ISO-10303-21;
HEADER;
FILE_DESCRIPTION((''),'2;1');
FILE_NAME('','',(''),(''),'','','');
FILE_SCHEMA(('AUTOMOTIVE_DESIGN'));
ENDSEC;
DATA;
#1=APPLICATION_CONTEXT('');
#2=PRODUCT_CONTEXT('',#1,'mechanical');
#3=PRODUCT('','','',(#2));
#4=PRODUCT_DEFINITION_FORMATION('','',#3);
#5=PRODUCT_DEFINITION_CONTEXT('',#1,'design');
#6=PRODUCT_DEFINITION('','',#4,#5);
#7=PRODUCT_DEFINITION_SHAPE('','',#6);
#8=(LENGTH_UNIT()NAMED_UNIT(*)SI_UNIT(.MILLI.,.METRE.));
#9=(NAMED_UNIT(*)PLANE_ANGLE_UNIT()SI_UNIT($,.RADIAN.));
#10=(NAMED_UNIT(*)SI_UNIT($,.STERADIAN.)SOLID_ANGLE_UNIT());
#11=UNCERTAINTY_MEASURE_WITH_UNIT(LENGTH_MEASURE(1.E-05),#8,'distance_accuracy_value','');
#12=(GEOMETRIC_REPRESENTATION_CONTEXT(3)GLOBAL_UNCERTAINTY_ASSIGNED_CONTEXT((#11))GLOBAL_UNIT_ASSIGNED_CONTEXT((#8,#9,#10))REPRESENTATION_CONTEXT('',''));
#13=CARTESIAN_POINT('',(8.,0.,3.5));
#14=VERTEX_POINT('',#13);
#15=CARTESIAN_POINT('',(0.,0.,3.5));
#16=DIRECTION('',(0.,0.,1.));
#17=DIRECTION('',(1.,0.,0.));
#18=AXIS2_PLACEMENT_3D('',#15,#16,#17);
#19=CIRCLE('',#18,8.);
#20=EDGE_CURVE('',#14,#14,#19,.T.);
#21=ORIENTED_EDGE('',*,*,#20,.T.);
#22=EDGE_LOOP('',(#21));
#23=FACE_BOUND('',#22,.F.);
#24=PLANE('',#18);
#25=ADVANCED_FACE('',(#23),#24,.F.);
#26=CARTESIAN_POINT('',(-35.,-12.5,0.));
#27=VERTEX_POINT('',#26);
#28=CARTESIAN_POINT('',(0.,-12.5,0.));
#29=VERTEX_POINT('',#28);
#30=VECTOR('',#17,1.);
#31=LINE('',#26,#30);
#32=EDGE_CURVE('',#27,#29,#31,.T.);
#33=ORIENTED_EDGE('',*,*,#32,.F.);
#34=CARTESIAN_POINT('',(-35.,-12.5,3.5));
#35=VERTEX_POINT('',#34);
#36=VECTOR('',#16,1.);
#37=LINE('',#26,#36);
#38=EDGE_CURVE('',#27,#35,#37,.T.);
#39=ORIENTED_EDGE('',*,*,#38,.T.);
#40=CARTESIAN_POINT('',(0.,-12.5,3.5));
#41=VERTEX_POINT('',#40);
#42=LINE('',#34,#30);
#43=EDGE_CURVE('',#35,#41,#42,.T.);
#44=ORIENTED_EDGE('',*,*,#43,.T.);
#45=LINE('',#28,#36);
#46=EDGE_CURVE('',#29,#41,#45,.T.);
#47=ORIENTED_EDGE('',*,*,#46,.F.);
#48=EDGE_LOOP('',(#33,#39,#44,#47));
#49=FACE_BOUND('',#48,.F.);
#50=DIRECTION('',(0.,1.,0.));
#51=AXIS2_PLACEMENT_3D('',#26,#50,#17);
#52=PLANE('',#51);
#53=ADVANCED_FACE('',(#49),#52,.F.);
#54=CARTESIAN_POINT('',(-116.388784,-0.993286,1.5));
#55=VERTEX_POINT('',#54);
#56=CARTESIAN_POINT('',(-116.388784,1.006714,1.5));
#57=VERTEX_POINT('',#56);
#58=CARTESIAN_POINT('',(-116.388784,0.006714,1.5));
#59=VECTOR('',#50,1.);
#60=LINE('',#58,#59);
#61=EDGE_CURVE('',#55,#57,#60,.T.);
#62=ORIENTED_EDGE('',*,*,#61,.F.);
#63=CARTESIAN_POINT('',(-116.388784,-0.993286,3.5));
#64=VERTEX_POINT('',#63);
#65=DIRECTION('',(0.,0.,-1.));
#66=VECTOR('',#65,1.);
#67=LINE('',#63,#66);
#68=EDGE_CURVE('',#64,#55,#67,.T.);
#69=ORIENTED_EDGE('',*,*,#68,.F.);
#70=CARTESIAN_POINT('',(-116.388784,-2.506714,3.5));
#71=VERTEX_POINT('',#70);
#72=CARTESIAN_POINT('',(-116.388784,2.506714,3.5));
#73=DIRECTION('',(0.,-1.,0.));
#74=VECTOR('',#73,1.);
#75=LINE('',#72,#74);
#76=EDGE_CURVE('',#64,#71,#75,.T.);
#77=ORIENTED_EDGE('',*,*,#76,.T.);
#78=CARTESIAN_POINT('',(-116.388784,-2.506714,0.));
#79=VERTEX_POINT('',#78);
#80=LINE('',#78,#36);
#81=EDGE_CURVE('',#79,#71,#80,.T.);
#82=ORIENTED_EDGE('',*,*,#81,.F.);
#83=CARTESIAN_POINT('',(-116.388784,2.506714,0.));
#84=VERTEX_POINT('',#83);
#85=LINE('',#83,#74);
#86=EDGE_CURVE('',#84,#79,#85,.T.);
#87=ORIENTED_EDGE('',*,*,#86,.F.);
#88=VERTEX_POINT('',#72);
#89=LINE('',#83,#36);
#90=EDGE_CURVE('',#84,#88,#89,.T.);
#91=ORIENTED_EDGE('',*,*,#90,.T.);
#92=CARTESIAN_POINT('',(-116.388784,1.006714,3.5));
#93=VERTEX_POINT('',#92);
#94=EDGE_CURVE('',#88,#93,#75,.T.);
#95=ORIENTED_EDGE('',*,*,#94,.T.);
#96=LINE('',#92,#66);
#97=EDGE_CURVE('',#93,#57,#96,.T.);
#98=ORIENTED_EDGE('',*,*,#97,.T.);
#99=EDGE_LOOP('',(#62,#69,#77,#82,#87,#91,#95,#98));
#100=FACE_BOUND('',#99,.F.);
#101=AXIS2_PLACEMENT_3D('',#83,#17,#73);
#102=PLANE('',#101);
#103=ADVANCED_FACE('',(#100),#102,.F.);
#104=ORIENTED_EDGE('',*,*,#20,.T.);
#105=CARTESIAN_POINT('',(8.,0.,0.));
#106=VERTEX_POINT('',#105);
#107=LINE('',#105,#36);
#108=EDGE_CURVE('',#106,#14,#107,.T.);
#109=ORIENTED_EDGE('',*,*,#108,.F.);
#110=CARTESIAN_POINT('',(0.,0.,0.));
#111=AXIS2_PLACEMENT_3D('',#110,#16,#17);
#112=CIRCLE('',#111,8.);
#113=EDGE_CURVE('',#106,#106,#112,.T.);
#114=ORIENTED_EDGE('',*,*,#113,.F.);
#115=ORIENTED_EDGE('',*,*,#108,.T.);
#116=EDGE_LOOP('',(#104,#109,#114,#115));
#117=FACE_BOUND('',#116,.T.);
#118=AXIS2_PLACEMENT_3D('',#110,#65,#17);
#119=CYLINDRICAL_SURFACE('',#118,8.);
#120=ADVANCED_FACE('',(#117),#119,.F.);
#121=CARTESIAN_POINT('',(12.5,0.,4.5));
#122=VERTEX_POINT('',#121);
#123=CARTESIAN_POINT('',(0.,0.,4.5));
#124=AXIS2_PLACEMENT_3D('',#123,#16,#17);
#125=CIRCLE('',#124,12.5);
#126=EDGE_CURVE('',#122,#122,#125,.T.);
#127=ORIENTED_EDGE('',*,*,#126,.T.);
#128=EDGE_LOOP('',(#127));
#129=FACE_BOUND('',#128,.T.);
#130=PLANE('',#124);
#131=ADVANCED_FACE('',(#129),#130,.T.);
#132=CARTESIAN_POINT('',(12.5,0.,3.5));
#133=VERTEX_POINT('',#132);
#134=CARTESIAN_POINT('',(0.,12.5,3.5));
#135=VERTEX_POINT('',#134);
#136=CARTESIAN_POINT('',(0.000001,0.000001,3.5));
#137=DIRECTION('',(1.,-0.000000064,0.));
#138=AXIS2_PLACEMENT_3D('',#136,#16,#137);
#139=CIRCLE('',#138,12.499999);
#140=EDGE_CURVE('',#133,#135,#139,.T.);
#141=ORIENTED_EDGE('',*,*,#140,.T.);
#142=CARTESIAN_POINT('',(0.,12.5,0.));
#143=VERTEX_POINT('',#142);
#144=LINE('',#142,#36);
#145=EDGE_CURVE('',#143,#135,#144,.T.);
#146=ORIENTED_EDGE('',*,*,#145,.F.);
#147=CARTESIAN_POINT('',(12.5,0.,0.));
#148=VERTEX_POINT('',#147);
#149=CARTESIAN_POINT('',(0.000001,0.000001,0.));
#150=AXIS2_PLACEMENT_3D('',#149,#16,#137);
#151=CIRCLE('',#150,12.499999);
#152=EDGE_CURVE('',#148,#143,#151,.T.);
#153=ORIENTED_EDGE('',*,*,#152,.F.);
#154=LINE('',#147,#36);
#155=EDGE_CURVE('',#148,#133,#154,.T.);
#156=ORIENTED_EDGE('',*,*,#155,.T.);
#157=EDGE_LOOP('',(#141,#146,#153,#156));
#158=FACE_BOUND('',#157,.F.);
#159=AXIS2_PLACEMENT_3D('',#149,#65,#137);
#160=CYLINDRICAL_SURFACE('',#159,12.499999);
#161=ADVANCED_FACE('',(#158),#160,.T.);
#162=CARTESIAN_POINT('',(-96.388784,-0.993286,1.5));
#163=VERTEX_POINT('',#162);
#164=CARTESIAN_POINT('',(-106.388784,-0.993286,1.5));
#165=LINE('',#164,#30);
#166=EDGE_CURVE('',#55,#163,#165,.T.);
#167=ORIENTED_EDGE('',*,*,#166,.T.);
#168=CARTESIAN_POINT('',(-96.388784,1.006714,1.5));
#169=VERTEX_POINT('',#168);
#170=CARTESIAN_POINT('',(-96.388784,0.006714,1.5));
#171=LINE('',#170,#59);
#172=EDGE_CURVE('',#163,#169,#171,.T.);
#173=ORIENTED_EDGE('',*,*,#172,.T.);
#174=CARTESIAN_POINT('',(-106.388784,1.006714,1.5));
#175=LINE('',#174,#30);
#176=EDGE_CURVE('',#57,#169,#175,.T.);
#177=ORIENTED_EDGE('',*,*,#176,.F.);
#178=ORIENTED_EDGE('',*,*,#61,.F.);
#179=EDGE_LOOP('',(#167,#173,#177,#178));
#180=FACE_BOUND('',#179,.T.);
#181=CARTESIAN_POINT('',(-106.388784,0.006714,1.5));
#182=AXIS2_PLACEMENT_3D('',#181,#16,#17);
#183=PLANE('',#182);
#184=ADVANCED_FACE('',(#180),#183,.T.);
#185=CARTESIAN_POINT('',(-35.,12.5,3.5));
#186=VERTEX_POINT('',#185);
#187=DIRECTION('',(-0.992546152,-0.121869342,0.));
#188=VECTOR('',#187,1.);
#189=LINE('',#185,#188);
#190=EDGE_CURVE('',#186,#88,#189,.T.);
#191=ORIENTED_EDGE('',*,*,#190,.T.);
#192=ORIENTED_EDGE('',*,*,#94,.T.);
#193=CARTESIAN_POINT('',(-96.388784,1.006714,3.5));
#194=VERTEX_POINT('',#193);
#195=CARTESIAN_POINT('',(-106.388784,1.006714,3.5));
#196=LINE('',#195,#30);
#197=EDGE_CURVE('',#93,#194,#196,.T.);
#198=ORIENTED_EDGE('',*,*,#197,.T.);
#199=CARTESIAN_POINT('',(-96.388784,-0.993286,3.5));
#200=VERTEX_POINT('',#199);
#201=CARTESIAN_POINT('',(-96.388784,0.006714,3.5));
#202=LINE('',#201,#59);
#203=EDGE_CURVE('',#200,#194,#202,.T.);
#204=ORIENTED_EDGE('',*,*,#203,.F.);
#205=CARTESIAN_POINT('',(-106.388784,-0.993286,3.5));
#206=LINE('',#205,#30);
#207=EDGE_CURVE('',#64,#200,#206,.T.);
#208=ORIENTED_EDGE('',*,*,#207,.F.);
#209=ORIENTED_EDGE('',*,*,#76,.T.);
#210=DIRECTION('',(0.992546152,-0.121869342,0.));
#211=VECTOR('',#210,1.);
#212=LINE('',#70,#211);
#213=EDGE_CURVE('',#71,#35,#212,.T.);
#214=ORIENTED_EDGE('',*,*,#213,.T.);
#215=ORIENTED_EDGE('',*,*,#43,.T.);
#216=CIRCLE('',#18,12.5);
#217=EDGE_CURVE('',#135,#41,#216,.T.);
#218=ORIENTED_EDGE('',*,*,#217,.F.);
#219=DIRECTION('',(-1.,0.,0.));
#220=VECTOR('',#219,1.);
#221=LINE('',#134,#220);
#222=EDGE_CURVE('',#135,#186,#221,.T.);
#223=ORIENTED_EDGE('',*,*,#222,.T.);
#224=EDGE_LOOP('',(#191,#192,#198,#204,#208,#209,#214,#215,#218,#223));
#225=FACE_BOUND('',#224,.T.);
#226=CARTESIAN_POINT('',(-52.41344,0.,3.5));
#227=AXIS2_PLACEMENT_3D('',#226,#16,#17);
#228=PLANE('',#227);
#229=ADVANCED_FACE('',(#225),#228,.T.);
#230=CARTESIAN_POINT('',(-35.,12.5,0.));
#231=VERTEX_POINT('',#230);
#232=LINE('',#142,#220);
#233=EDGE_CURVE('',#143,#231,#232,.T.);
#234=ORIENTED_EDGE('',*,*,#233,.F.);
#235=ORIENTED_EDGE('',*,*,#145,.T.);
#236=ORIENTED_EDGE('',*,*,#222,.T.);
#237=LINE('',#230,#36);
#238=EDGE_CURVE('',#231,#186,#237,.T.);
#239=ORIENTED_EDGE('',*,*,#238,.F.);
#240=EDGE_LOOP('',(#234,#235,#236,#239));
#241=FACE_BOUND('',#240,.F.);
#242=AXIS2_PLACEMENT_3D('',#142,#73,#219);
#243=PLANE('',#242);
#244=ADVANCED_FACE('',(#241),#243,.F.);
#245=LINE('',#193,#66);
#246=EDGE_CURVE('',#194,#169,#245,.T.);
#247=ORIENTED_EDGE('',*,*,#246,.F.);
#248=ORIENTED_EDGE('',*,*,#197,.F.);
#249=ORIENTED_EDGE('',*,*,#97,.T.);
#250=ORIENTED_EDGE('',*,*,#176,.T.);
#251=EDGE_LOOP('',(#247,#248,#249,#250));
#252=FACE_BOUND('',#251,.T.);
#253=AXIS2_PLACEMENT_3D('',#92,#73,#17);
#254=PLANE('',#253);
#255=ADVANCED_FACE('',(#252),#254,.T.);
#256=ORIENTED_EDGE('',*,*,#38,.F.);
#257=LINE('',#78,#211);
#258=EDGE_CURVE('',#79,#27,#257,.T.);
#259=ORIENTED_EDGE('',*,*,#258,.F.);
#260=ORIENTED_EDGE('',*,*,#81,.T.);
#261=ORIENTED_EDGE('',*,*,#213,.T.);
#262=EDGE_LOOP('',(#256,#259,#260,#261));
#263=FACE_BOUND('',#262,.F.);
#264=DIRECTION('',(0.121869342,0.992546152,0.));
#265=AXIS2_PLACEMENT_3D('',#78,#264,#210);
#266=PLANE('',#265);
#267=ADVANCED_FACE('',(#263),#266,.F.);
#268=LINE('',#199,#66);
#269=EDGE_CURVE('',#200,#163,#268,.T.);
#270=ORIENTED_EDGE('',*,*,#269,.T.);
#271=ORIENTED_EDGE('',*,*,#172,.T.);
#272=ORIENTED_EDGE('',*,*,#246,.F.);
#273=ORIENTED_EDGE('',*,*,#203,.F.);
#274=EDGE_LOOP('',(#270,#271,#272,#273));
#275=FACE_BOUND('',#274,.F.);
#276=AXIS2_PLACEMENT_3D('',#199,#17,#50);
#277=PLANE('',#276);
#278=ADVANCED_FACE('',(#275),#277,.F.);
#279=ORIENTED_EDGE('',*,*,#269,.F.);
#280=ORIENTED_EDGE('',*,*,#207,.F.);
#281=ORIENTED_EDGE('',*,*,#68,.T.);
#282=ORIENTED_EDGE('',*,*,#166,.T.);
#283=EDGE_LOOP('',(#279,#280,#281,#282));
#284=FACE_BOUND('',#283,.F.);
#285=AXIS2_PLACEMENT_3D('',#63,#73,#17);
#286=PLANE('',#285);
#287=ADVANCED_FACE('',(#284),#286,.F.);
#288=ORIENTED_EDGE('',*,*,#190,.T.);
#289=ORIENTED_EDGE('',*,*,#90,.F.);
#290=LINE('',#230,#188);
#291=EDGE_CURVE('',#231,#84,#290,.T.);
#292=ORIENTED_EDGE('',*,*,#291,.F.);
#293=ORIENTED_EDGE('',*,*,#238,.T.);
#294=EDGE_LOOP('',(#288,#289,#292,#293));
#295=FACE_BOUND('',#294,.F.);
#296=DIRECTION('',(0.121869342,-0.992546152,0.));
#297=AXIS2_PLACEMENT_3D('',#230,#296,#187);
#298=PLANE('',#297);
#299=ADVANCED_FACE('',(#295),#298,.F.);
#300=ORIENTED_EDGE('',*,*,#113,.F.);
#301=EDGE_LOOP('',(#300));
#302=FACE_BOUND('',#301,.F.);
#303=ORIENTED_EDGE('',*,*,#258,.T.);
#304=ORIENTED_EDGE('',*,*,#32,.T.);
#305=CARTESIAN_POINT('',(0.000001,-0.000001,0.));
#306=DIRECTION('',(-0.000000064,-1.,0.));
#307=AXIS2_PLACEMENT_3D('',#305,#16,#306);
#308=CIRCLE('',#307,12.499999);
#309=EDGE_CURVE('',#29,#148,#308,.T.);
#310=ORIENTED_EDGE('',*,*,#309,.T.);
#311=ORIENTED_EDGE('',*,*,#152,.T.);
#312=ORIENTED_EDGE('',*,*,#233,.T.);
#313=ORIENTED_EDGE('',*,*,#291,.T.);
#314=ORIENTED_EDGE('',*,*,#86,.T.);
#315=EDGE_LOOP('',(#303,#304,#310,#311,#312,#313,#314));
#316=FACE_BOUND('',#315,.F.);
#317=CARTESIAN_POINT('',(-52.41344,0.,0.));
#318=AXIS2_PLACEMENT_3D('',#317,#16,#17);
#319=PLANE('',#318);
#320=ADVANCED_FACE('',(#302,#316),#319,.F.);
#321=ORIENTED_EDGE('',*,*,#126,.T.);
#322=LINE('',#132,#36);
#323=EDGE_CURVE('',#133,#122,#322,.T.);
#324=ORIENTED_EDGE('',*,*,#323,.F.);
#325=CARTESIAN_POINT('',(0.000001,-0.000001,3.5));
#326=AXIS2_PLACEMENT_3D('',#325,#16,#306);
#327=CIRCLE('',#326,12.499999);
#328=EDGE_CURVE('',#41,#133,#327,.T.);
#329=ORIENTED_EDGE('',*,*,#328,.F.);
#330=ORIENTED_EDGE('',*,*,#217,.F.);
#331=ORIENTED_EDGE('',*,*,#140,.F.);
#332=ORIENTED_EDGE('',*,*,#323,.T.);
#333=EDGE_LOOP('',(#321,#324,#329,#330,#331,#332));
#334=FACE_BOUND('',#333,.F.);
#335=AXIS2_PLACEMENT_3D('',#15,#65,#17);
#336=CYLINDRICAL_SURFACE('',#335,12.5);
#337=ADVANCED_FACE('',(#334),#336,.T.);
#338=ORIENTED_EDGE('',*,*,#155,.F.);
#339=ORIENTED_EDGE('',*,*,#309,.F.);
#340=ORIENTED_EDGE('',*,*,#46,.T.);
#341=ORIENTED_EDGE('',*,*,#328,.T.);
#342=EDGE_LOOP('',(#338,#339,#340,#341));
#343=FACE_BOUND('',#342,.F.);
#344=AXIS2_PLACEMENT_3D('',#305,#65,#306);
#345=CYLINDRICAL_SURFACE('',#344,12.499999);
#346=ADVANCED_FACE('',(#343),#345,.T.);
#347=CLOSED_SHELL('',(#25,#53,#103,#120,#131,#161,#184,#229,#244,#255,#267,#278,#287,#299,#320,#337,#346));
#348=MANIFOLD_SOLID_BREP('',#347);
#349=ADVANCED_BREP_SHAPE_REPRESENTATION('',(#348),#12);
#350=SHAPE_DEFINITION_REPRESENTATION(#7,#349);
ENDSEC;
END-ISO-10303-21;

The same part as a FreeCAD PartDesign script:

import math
import FreeCAD as App
import Part
import Sketcher
Q = App.Units.Quantity


def add_polygon(sketch, points):
    """Adds a closed chain of lines whose ends are joined by coincident constraints."""
    first, n = sketch.GeometryCount, len(points)
    for a, b in zip(points, points[1:] + points[:1]):
        sketch.addGeometry(Part.LineSegment(App.Vector(*a, 0), App.Vector(*b, 0)), False)
    for i in range(n):
        sketch.addConstraint(Sketcher.Constraint("Coincident", first + i, 2, first + (i + 1) % n, 1))

doc = App.newDocument("Part")
body = doc.addObject("PartDesign::Body", "Body")

sketch1 = doc.addObject("Sketcher::SketchObject", "Sketch")
body.addObject(sketch1)
sketch1.AttachmentSupport = (doc.XY_Plane, [""])
sketch1.MapMode = "FlatFace"
sketch1.addGeometry([
    Part.LineSegment(App.Vector(0, 12.5, 0), App.Vector(-35, 12.5, 0)),
    Part.LineSegment(App.Vector(-35, 12.5, 0), App.Vector(-116.388784, 2.506714, 0)),
    Part.LineSegment(App.Vector(-116.388784, 2.506714, 0), App.Vector(-116.388784, -2.506714, 0)),
    Part.LineSegment(App.Vector(-116.388784, -2.506714, 0), App.Vector(-35, -12.5, 0)),
    Part.LineSegment(App.Vector(-35, -12.5, 0), App.Vector(0, -12.5, 0)),
    Part.ArcOfCircle(Part.Circle(App.Vector(0.000001, -0.000001, 0), App.Vector(0, 0, 1), 12.499999), math.radians(-90.000004), math.radians(0.000004)),
    Part.ArcOfCircle(Part.Circle(App.Vector(0.000001, 0.000001, 0), App.Vector(0, 0, 1), 12.499999), math.radians(-0.000004), math.radians(90.000004)),
    Part.Circle(App.Vector(0, 0, 0), App.Vector(0, 0, 1), 8),
], False)
sketch1.addConstraint([
    Sketcher.Constraint("Coincident", 0, 2, 1, 1),
    Sketcher.Constraint("Coincident", 1, 2, 2, 1),
    Sketcher.Constraint("Coincident", 2, 2, 3, 1),
    Sketcher.Constraint("Coincident", 3, 2, 4, 1),
    Sketcher.Constraint("Tangent", 4, 2, 5, 1),
    Sketcher.Constraint("Tangent", 5, 2, 6, 1),
    Sketcher.Constraint("Tangent", 6, 2, 0, 1),
    Sketcher.Constraint("Horizontal", 0),
    Sketcher.Constraint("Vertical", 2),
    Sketcher.Constraint("Horizontal", 4),
    Sketcher.Constraint("Coincident", 5, 3, -1, 1),
    Sketcher.Constraint("Coincident", 7, 3, -1, 1),
    Sketcher.Constraint("Equal", 5, 6),
    Sketcher.Constraint("PointOnObject", 5, 2, -1),
    Sketcher.Constraint("Vertical", 0, 2, 3, 2),
    Sketcher.Constraint("Equal", 1, 3),
    Sketcher.Constraint("Diameter", 7, Q("16 mm")),
    Sketcher.Constraint("Radius", 5, Q("12.499999 mm")),
    Sketcher.Constraint("DistanceX", 0, 2, 0, 1, Q("35 mm")),
    Sketcher.Constraint("Angle", 1, Q("-173 deg")),
    Sketcher.Constraint("Distance", 1, Q("82 mm")),
])
pad1 = doc.addObject("PartDesign::Pad", "Pad")
body.addObject(pad1)
pad1.Profile = sketch1
pad1.Length = 3.5

sketch2 = doc.addObject("Sketcher::SketchObject", "Sketch001")
body.addObject(sketch2)
sketch2.AttachmentSupport = (doc.XY_Plane, [""])
sketch2.MapMode = "FlatFace"
sketch2.AttachmentOffset = App.Placement(App.Vector(0, 0, 3.5), App.Rotation())
sketch2.addGeometry(Part.Circle(App.Vector(0, 0, 0), App.Vector(0, 0, 1), 12.5), False)
sketch2.addConstraint([
    Sketcher.Constraint("Coincident", 0, 3, -1, 1),
    Sketcher.Constraint("Diameter", 0, Q("25 mm")),
])
pad2 = doc.addObject("PartDesign::Pad", "Pad001")
body.addObject(pad2)
pad2.Profile = sketch2
pad2.Length = 1

sketch3 = doc.addObject("Sketcher::SketchObject", "Sketch002")
body.addObject(sketch3)
sketch3.AttachmentSupport = (doc.XY_Plane, [""])
sketch3.MapMode = "FlatFace"
sketch3.AttachmentOffset = App.Placement(App.Vector(0, 0, 3.5), App.Rotation())
add_polygon(sketch3, [(-116.388784, 1.006714), (-116.388784, -0.993286), (-96.388784, -0.993286), (-96.388784, 1.006714)])
sketch3.addConstraint([
    Sketcher.Constraint("Vertical", 0),
    Sketcher.Constraint("Horizontal", 1),
    Sketcher.Constraint("Vertical", 2),
    Sketcher.Constraint("Horizontal", 3),
    Sketcher.Constraint("DistanceX", 1, 1, 1, 2, Q("20 mm")),
    Sketcher.Constraint("DistanceY", 0, 2, 0, 1, Q("2 mm")),
    Sketcher.Constraint("DistanceX", 0, 2, -1, 1, Q("116.388784 mm")),
    Sketcher.Constraint("DistanceY", 0, 2, -1, 1, Q("0.993286 mm")),
])
pocket1 = doc.addObject("PartDesign::Pocket", "Pocket")
body.addObject(pocket1)
pocket1.Profile = sketch3
pocket1.Length = 2

doc.recompute()
